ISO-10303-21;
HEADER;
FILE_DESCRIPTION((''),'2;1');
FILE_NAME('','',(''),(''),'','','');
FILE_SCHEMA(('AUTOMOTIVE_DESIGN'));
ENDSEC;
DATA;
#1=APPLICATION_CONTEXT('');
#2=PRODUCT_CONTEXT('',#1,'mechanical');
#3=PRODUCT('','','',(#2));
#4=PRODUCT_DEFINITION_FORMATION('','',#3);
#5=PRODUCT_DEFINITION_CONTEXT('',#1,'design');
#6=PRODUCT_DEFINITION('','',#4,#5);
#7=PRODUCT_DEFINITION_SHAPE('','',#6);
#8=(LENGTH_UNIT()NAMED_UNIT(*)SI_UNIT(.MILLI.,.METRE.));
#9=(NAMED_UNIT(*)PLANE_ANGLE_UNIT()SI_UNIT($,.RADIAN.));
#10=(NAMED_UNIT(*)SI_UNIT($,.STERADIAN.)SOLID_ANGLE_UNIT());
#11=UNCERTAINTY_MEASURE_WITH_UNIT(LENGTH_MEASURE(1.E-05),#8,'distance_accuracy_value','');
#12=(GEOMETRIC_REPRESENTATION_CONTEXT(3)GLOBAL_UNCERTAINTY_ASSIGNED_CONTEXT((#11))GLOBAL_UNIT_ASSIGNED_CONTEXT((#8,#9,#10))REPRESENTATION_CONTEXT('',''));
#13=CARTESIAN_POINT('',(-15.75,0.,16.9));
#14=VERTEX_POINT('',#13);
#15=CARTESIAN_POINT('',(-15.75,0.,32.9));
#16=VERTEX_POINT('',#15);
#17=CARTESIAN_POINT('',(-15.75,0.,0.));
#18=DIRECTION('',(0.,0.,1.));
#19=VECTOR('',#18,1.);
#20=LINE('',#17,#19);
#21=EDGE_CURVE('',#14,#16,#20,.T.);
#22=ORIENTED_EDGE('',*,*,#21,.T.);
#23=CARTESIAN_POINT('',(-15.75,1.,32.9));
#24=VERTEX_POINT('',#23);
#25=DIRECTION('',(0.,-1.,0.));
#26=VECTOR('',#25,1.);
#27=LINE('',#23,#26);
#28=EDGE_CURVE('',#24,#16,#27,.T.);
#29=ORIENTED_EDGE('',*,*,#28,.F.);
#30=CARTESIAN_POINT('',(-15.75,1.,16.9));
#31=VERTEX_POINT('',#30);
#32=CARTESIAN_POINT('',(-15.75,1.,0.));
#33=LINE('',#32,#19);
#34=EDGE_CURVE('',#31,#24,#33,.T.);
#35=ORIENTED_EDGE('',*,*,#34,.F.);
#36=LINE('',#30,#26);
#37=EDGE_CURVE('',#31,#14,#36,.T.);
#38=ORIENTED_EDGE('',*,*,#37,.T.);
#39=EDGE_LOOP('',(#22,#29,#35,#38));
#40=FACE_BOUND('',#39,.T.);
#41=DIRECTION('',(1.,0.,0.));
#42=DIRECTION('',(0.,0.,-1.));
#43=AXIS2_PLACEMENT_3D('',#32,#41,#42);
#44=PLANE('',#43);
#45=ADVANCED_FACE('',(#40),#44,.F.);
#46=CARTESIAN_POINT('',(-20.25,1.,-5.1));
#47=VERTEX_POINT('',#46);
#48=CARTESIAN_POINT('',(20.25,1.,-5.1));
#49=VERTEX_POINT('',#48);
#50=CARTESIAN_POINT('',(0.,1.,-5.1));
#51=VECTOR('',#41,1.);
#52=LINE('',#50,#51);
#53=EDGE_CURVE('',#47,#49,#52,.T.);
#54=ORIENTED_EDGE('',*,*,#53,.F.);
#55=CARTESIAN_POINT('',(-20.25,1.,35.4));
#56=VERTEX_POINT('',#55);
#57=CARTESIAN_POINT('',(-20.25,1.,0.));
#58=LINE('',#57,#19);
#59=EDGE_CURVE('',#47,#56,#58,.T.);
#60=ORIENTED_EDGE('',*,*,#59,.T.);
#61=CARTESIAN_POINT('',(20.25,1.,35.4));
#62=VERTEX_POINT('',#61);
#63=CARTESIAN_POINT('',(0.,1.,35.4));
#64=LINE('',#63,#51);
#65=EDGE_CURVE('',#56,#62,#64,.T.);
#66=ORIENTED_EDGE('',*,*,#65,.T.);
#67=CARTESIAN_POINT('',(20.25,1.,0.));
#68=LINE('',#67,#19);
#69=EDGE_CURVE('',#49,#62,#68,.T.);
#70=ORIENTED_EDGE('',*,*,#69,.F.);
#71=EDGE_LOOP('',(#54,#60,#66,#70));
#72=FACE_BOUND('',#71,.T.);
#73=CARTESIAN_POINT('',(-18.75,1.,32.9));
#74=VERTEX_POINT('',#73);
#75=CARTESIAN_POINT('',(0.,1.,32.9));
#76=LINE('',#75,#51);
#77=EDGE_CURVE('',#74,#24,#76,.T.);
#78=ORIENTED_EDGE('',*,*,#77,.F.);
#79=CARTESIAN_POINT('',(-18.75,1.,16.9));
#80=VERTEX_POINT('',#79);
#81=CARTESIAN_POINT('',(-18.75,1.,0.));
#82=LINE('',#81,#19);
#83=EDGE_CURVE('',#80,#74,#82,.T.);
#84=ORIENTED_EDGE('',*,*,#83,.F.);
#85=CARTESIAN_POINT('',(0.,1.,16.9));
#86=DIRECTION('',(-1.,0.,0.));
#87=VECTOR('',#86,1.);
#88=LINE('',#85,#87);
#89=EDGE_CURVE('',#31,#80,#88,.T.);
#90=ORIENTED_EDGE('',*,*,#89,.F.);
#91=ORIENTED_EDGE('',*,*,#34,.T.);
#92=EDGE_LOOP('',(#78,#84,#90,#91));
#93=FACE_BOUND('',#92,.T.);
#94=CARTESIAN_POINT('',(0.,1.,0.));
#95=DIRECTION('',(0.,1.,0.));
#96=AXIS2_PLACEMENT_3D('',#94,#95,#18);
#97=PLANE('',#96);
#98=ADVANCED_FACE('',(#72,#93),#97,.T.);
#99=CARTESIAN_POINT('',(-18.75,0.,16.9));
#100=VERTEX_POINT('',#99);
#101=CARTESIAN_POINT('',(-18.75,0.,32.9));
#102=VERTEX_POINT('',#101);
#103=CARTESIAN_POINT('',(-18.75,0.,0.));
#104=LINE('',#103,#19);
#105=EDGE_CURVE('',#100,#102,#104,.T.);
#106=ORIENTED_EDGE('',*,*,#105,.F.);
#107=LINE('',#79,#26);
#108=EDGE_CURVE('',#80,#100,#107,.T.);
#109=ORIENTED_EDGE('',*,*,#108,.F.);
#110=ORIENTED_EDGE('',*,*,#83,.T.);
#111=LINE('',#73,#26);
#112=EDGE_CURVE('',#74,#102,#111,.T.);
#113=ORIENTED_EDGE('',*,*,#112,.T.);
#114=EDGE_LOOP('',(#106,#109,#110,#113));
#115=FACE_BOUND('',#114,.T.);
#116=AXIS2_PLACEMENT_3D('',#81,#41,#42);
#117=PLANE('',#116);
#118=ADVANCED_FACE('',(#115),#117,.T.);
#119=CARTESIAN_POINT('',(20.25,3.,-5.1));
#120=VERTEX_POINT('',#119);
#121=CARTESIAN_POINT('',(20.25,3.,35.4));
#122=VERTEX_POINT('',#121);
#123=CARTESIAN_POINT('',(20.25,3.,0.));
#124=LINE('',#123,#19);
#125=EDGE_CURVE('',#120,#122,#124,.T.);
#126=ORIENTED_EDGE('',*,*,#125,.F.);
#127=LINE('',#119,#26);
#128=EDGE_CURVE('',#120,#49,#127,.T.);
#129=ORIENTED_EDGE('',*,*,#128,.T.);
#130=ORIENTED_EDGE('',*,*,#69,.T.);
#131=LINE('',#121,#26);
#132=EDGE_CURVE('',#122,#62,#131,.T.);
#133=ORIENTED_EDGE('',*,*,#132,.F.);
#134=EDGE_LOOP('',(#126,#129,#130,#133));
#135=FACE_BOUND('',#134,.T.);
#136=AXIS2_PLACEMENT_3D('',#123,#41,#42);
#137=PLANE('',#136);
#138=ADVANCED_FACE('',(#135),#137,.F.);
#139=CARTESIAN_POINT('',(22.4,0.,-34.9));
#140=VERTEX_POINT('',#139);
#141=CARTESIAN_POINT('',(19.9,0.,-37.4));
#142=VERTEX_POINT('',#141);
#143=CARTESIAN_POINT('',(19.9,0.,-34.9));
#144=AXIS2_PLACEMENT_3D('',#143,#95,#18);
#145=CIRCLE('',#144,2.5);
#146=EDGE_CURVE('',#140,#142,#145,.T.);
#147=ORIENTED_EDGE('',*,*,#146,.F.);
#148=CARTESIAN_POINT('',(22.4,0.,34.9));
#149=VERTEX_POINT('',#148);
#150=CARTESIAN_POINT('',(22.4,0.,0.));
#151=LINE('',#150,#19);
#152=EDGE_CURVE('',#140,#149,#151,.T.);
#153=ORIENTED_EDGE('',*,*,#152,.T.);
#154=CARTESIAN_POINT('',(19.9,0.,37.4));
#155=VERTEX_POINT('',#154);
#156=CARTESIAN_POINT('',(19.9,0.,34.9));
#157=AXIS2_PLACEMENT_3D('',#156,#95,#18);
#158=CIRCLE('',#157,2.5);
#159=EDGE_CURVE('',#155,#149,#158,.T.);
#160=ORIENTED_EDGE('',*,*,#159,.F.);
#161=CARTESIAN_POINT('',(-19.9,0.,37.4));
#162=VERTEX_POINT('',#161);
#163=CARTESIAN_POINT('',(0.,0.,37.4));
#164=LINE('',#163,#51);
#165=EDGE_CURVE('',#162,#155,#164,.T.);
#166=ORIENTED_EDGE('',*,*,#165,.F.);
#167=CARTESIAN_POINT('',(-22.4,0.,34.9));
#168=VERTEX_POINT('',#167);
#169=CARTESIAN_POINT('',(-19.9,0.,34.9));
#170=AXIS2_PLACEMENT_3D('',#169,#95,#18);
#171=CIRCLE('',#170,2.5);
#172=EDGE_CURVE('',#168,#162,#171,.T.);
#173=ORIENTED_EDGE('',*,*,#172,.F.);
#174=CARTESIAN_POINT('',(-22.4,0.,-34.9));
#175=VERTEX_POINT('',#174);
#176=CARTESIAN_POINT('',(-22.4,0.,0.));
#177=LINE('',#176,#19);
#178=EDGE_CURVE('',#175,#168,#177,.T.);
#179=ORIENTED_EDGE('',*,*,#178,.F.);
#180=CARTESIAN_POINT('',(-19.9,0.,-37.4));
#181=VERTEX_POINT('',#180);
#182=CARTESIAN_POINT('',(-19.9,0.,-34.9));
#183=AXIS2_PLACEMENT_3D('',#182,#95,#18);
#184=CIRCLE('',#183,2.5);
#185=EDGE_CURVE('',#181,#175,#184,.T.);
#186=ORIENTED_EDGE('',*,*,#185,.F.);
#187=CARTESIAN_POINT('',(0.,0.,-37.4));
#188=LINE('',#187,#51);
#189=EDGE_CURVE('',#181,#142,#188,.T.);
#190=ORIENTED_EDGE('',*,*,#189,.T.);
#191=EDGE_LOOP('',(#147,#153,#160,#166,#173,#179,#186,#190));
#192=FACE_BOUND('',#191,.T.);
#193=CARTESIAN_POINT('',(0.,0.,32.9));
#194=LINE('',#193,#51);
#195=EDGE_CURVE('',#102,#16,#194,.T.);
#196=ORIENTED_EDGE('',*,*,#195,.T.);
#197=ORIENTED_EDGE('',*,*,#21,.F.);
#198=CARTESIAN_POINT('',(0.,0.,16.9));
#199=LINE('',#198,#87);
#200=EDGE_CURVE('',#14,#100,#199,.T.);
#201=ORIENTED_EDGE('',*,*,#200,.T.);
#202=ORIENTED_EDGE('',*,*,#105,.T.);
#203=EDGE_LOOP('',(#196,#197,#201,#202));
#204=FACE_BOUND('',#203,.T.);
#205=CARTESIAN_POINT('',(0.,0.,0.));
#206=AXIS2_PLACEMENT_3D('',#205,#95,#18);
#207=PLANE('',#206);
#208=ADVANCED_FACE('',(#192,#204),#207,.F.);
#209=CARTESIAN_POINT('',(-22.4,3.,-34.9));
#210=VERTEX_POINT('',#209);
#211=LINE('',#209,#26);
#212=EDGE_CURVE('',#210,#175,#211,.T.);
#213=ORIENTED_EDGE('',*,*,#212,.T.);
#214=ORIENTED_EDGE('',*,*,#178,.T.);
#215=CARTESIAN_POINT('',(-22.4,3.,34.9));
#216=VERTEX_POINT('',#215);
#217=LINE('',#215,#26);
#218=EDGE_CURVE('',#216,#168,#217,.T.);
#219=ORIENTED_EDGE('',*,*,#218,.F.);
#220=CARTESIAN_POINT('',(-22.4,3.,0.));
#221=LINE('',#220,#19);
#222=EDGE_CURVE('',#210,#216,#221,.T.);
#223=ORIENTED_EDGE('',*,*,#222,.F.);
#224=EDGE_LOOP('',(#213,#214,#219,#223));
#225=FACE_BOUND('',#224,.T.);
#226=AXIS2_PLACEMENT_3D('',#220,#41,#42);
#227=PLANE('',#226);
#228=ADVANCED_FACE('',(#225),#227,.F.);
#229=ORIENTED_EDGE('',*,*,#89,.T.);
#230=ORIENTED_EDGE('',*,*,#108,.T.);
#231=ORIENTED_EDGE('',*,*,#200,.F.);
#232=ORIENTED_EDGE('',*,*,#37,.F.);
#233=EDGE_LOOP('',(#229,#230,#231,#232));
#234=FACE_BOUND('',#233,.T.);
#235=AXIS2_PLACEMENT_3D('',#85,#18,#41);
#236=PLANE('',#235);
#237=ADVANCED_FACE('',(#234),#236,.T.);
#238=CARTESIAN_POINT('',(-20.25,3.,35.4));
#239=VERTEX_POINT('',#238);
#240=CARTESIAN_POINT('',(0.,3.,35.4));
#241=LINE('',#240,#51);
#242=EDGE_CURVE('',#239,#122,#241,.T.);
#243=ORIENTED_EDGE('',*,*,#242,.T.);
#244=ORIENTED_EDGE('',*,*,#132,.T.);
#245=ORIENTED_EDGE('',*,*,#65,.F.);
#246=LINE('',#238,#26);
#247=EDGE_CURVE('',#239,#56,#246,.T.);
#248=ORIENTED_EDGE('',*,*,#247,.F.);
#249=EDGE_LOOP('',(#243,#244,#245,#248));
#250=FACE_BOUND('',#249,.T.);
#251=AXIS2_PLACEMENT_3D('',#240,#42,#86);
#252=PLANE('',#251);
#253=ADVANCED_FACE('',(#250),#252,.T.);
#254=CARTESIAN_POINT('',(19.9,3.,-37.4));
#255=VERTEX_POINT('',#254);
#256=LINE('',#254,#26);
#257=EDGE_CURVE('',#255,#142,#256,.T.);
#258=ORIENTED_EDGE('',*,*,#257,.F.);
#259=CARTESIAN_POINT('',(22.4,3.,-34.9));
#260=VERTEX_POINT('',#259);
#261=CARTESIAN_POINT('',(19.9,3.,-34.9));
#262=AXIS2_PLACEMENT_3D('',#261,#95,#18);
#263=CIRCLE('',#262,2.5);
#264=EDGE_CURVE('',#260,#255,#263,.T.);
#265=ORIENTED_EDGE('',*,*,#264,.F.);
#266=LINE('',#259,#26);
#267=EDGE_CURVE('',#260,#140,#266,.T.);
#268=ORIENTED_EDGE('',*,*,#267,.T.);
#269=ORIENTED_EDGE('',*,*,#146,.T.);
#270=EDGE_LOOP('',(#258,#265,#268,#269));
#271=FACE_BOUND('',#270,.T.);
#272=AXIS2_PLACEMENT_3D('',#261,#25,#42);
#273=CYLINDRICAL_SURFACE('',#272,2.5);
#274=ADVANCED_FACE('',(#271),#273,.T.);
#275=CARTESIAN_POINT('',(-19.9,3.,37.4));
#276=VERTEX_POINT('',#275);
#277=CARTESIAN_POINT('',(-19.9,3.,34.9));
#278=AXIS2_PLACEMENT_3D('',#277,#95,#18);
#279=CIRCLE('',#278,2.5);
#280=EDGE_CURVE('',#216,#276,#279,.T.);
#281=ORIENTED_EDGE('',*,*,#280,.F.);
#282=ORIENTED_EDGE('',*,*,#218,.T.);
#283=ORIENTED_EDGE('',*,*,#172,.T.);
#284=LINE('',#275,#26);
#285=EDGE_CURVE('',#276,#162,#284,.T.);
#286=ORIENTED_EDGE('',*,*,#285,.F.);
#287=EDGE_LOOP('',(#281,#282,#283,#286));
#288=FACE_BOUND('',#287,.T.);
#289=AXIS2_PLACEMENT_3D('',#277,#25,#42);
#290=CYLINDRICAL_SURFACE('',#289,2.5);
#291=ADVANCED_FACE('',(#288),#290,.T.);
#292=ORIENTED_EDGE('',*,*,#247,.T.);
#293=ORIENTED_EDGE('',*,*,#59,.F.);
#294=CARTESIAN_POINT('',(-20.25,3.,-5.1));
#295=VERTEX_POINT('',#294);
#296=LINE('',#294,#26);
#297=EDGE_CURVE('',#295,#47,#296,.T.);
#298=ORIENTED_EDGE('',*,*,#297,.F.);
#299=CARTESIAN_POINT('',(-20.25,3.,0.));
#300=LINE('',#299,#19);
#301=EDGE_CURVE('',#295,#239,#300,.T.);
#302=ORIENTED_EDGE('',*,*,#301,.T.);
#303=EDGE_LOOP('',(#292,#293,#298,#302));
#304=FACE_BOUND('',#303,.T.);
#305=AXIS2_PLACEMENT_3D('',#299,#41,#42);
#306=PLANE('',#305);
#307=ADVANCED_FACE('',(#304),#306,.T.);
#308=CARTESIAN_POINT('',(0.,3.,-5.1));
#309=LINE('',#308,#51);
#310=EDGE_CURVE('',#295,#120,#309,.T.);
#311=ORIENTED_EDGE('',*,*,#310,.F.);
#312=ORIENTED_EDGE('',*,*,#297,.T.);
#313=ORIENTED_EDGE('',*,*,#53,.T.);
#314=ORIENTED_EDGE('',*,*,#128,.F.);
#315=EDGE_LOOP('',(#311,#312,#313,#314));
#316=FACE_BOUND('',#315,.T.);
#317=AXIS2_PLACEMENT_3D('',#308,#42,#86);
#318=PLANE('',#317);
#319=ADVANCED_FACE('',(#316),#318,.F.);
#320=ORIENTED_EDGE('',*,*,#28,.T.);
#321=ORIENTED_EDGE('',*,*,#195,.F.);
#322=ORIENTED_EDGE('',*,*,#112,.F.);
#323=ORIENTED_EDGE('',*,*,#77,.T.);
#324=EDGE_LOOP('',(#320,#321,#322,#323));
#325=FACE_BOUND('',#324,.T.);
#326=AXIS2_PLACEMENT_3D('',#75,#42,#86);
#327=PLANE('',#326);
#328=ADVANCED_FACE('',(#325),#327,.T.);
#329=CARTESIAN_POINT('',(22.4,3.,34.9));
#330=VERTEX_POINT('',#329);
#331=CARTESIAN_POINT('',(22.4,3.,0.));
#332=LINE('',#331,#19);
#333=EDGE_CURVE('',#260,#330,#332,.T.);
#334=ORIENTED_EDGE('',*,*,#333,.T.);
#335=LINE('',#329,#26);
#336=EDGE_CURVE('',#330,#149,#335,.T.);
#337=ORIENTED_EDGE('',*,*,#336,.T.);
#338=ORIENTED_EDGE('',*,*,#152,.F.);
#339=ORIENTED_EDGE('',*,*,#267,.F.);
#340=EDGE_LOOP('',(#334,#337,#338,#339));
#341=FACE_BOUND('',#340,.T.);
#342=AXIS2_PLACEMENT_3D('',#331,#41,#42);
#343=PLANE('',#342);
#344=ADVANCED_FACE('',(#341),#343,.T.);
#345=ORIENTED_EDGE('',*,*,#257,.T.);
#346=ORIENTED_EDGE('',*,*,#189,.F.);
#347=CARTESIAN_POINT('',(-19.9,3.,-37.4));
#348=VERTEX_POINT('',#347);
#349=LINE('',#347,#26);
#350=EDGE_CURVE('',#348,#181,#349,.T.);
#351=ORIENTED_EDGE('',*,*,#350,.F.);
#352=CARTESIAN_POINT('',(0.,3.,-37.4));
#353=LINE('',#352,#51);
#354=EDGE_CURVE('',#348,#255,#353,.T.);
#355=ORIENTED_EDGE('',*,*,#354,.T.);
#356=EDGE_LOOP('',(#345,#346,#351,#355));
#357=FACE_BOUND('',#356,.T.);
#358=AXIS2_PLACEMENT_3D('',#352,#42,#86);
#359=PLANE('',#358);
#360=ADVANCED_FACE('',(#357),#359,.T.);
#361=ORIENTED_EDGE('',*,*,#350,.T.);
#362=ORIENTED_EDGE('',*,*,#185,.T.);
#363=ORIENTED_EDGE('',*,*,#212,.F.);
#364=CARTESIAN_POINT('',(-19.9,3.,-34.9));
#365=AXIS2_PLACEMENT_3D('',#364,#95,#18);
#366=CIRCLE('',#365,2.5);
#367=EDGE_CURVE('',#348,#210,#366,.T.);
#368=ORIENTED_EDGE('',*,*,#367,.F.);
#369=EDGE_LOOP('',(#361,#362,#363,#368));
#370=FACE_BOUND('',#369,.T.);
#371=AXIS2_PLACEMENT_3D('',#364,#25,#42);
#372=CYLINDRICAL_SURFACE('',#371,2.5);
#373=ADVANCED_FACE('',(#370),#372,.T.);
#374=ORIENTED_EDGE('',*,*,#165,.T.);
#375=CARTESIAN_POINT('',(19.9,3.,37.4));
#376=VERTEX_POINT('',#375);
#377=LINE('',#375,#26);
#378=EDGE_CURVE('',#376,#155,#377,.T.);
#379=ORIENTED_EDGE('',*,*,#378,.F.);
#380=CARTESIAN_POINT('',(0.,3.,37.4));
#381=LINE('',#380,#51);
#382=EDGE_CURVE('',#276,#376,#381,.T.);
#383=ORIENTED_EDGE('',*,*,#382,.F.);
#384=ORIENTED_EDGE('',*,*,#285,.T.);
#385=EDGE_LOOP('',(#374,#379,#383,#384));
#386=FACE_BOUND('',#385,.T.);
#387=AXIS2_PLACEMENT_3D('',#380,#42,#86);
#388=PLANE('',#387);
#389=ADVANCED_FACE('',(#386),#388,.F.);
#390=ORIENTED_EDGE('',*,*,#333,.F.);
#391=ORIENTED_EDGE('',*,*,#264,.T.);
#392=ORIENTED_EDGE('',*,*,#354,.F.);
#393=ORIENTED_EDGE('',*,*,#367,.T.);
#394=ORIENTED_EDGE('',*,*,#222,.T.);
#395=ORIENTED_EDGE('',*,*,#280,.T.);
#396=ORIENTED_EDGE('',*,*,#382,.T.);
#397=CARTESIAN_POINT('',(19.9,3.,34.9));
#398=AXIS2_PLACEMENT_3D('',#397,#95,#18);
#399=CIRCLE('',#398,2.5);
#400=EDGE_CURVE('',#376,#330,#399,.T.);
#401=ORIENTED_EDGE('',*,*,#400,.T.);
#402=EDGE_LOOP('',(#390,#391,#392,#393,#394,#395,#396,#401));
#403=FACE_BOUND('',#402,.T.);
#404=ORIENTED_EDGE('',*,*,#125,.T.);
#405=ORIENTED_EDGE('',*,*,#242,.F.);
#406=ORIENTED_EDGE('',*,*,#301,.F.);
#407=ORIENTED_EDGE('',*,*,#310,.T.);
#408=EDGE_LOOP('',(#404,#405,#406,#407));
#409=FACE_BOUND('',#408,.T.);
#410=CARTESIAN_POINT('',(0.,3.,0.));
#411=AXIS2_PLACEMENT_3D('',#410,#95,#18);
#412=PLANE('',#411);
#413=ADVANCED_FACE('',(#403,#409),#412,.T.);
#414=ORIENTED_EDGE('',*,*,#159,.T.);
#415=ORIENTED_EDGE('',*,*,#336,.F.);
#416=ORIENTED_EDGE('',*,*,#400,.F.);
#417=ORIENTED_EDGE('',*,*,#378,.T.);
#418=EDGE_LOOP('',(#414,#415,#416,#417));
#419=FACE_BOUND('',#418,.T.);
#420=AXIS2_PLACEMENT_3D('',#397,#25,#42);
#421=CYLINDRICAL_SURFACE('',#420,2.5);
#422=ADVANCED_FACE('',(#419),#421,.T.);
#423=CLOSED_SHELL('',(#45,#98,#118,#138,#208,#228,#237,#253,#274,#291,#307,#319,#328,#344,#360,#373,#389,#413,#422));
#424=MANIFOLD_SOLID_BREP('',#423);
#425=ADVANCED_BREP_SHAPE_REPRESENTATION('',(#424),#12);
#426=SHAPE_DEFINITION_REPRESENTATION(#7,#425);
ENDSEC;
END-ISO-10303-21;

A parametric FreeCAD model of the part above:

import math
import FreeCAD as App
import Part
import Sketcher
from FreeCAD import Vector


def add_polygon(sketch, points):
    """Adds a closed chain of lines whose ends are joined by coincident constraints."""
    first, n = sketch.GeometryCount, len(points)
    for a, b in zip(points, points[1:] + points[:1]):
        sketch.addGeometry(Part.LineSegment(App.Vector(*a, 0), App.Vector(*b, 0)), False)
    for i in range(n):
        sketch.addConstraint(Sketcher.Constraint("Coincident", first + i, 2, first + (i + 1) % n, 1))

doc = App.newDocument("Part")
body = doc.addObject("PartDesign::Body", "Body")

# Sketch on XZ plane
sketch1 = body.newObject("Sketcher::SketchObject", "Sketch")
sketch1.AttachmentSupport = (doc.getObject("XZ_Plane"), [""])
sketch1.MapMode = "FlatFace"
sketch1.addGeometry(Part.LineSegment(Vector(19.9, -37.4, 0), Vector(-19.9, -37.4, 0)), False)  # 0
sketch1.addGeometry(Part.ArcOfCircle(Part.Circle(Vector(-19.9, -34.9, 0), Vector(0, 0, 1), 2.5), math.radians(180), math.radians(270)), False)  # 1
sketch1.addGeometry(Part.LineSegment(Vector(-22.4, -34.9, 0), Vector(-22.4, 34.9, 0)), False)  # 2
sketch1.addGeometry(Part.ArcOfCircle(Part.Circle(Vector(-19.9, 34.9, 0), Vector(0, 0, 1), 2.5), math.radians(90), math.radians(180)), False)  # 3
sketch1.addGeometry(Part.LineSegment(Vector(-19.9, 37.4, 0), Vector(19.9, 37.4, 0)), False)  # 4
sketch1.addGeometry(Part.ArcOfCircle(Part.Circle(Vector(19.9, 34.9, 0), Vector(0, 0, 1), 2.5), math.radians(0), math.radians(90)), False)  # 5
sketch1.addGeometry(Part.LineSegment(Vector(22.4, 34.9, 0), Vector(22.4, -34.9, 0)), False)  # 6
sketch1.addGeometry(Part.ArcOfCircle(Part.Circle(Vector(19.9, -34.9, 0), Vector(0, 0, 1), 2.5), math.radians(-90), math.radians(0)), False)  # 7
add_polygon(sketch1, [(-20.2, 35.4), (-20.2, -5.1), (20.2, -5.1), (20.2, 35.4)])  # lines 8-11
sketch1.addConstraint([
    Sketcher.Constraint("Tangent", 0, 2, 1, 2),
    Sketcher.Constraint("Tangent", 1, 1, 2, 1),
    Sketcher.Constraint("Tangent", 2, 2, 3, 2),
    Sketcher.Constraint("Tangent", 3, 1, 4, 1),
    Sketcher.Constraint("Tangent", 4, 2, 5, 2),
    Sketcher.Constraint("Tangent", 5, 1, 6, 1),
    Sketcher.Constraint("Tangent", 6, 2, 7, 2),
    Sketcher.Constraint("Tangent", 7, 1, 0, 1),
    Sketcher.Constraint("Horizontal", 0),
    Sketcher.Constraint("Vertical", 2),
    Sketcher.Constraint("Horizontal", 4),
    Sketcher.Constraint("Vertical", 6),
    Sketcher.Constraint("Vertical", 8),
    Sketcher.Constraint("Horizontal", 9),
    Sketcher.Constraint("Vertical", 10),
    Sketcher.Constraint("Horizontal", 11),
    Sketcher.Constraint("Equal", 1, 3),
    Sketcher.Constraint("Equal", 3, 5),
    Sketcher.Constraint("Equal", 5, 7),
    Sketcher.Constraint("Symmetric", 1, 3, 5, 3, -1, 1),
    Sketcher.Constraint("Equal", 11, 8),
    Sketcher.Constraint("Radius", 1, 2.5),
    Sketcher.Constraint("DistanceX", 0, 2, 0, 1, 39.8),
    Sketcher.Constraint("DistanceX", 9, 1, 9, 2, 40.5),
    Sketcher.Constraint("DistanceY", 2, 1, 2, 2, 69.8),
    Sketcher.Constraint("DistanceY", 8, 2, 3, 3, 40.0),
    Sketcher.Constraint("DistanceX", 8, 2, -1, 1, 20.25),
])
pad1 = body.newObject("PartDesign::Pad", "Pad")
pad1.Profile = sketch1
pad1.Length = 3
pad1.Reversed = True

# Sketch on XZ plane
sketch2 = body.newObject("Sketcher::SketchObject", "Sketch001")
sketch2.AttachmentSupport = (doc.getObject("XZ_Plane"), [""])
sketch2.MapMode = "FlatFace"
add_polygon(sketch2, [(-20.2, -5.1), (-20.2, 35.4), (20.2, 35.4), (20.2, -5.1)])  # lines 0-3
add_polygon(sketch2, [(-15.8, 32.9), (-18.8, 32.9), (-18.8, 16.9), (-15.8, 16.9)])  # lines 4-7
sketch2.addConstraint([
    Sketcher.Constraint("Vertical", 0),
    Sketcher.Constraint("Horizontal", 1),
    Sketcher.Constraint("Vertical", 2),
    Sketcher.Constraint("Horizontal", 3),
    Sketcher.Constraint("Horizontal", 4),
    Sketcher.Constraint("Vertical", 5),
    Sketcher.Constraint("Horizontal", 6),
    Sketcher.Constraint("Vertical", 7),
    Sketcher.Constraint("Equal", 3, 0),
    Sketcher.Constraint("DistanceX", 4, 2, 4, 1, 3.0),
    Sketcher.Constraint("DistanceY", 5, 2, 5, 1, 16.0),
    Sketcher.Constraint("DistanceX", 1, 1, 1, 2, 40.5),
    Sketcher.Constraint("DistanceY", 3, 2, 4, 2, 38.0),
    Sketcher.Constraint("DistanceX", 4, 2, 1, 2, 39.0),
    Sketcher.Constraint("DistanceY", -1, 1, 0, 2, 35.4),
    Sketcher.Constraint("DistanceX", 0, 2, -1, 1, 20.25),
])
pad2 = body.newObject("PartDesign::Pad", "Pad001")
pad2.Profile = sketch2
pad2.Length = 1
pad2.Reversed = True

doc.recompute()
